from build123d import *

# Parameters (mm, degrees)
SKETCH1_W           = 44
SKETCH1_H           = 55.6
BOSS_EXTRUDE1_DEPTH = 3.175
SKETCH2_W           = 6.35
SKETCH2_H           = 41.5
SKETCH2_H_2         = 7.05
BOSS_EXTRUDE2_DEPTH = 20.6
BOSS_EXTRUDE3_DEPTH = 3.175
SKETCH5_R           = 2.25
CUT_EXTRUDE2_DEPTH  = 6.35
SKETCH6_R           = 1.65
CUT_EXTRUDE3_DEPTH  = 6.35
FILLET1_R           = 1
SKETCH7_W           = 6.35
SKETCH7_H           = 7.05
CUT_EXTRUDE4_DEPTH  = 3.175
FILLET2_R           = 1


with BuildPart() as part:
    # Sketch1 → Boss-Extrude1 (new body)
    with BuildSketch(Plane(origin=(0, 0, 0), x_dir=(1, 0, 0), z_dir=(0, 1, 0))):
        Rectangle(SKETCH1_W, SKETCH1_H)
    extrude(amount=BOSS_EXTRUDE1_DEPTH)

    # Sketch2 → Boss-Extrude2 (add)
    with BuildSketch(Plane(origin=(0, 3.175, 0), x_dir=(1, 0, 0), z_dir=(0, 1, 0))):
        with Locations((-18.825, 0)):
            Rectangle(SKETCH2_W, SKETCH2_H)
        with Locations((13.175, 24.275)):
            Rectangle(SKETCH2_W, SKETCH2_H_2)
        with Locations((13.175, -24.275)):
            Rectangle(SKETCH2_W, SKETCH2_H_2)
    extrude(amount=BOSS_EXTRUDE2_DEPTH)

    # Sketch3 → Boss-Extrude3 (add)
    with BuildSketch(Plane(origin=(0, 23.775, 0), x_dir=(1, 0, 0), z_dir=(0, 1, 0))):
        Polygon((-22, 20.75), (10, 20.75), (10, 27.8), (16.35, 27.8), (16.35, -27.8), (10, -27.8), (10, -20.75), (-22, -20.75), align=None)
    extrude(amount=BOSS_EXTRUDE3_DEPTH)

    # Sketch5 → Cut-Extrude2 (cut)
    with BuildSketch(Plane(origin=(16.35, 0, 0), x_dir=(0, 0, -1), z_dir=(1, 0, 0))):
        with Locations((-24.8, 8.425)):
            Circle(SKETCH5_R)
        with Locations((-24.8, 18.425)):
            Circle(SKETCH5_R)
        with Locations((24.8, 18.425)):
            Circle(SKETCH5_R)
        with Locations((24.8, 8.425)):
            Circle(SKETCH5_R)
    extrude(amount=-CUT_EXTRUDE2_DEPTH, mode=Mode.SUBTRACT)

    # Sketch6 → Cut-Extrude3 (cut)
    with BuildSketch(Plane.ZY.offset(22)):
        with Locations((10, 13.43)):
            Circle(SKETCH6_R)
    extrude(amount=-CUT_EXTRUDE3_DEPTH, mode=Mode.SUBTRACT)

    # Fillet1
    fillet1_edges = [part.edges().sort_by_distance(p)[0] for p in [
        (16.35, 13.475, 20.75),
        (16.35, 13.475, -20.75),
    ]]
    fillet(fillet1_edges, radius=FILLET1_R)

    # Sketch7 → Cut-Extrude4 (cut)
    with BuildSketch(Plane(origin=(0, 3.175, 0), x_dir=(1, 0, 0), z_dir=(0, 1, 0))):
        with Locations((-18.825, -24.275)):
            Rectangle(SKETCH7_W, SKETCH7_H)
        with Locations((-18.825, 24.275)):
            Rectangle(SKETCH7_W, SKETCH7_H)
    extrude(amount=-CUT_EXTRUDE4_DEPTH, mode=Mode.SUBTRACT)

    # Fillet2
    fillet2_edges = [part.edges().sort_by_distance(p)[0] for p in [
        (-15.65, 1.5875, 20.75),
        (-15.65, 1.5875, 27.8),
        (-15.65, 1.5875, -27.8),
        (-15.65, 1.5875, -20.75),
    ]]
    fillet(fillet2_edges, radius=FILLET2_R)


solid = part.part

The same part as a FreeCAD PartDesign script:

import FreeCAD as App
import Part
import Sketcher
Q = App.Units.Quantity


def edges_at(feature, points):
    """Names of the edges that pass closest to the given points."""
    edges = feature.Shape.Edges
    near = lambda p: min(range(len(edges)), key=lambda i: edges[i].distToShape(Part.Vertex(*p))[0])
    return sorted({f"Edge{near(p) + 1}" for p in points})

doc = App.newDocument("Part")
params = doc.addObject("Spreadsheet::Sheet", "Params")
for row, (alias, value) in enumerate([
    ("sketch1_width", "44 mm"),
    ("sketch1_height", "55.6 mm"),
    ("pad1_length", "3.175 mm"),
    ("sketch2_height", "41.5 mm"),
    ("sketch2_width", "6.35 mm"),
    ("sketch2_height2", "7.05 mm"),
    ("pad2_length", "20.6 mm"),
    ("sketch3_width", "32 mm"),
    ("sketch3_height", "41.5 mm"),
    ("sketch3_height2", "55.6 mm"),
    ("sketch3_width2", "6.35 mm"),
    ("pad3_length", "3.175 mm"),
    ("sketch4_diameter", "4.5 mm"),
    ("pocket1_length", "6.35 mm"),
    ("sketch5_diameter", "3.3 mm"),
    ("pocket2_length", "6.35 mm"),
    ("fillet_radius", "1 mm"),
    ("sketch6_width", "6.35 mm"),
    ("sketch6_height", "7.05 mm"),
    ("pocket3_length", "3.175 mm"),
    ("fillet2_radius", "1 mm"),
], start=1):
    params.set(f"A{row}", alias)
    params.set(f"B{row}", "=" + value)
    params.setAlias(f"B{row}", alias)

body = doc.addObject("PartDesign::Body", "Body")

# Sketch on XZ plane
sketch1 = body.newObject("Sketcher::SketchObject", "Sketch")
sketch1.AttachmentSupport = (doc.getObject("XZ_Plane"), [""])
sketch1.MapMode = "FlatFace"
sketch1.addGeometry(Part.LineSegment(App.Vector(-22, -28, 0), App.Vector(-22, 28, 0)), False)
sketch1.addGeometry(Part.LineSegment(App.Vector(-22, 28, 0), App.Vector(22, 28, 0)), False)
sketch1.addGeometry(Part.LineSegment(App.Vector(22, 28, 0), App.Vector(22, -28, 0)), False)
sketch1.addGeometry(Part.LineSegment(App.Vector(22, -28, 0), App.Vector(-22, -28, 0)), False)
sketch1.addConstraint(Sketcher.Constraint("Coincident", 0, 2, 1, 1))
sketch1.addConstraint(Sketcher.Constraint("Coincident", 1, 2, 2, 1))
sketch1.addConstraint(Sketcher.Constraint("Coincident", 2, 2, 3, 1))
sketch1.addConstraint(Sketcher.Constraint("Coincident", 3, 2, 0, 1))
sketch1.addConstraint(Sketcher.Constraint("Vertical", 0))
sketch1.addConstraint(Sketcher.Constraint("Horizontal", 1))
sketch1.addConstraint(Sketcher.Constraint("Vertical", 2))
sketch1.addConstraint(Sketcher.Constraint("Horizontal", 3))
sketch1.addConstraint(Sketcher.Constraint("Symmetric", 0, 2, 2, 2, -1, 1))
sketch1.addConstraint(Sketcher.Constraint("DistanceX", 1, 1, 1, 2, Q("44 mm")))
sketch1.addConstraint(Sketcher.Constraint("DistanceY", 0, 1, 0, 2, Q("55.6 mm")))
sketch1.setExpression("Constraints[9]", "Params.sketch1_width")
sketch1.setExpression("Constraints[10]", "Params.sketch1_height")
pad1 = body.newObject("PartDesign::Pad", "Pad")
pad1.Profile = sketch1
pad1.setExpression("Length", "Params.pad1_length")
pad1.Reversed = True

# Sketch on XZ plane
sketch2 = body.newObject("Sketcher::SketchObject", "Sketch001")
sketch2.AttachmentSupport = (doc.getObject("XZ_Plane"), [""])
sketch2.MapMode = "FlatFace"
sketch2.AttachmentOffset = App.Placement(App.Vector(0, 0, -3.175), App.Rotation())
sketch2.addGeometry(Part.LineSegment(App.Vector(-22, -21, 0), App.Vector(-22, 21, 0)), False)
sketch2.addGeometry(Part.LineSegment(App.Vector(-22, 21, 0), App.Vector(-16, 21, 0)), False)
sketch2.addGeometry(Part.LineSegment(App.Vector(-16, 21, 0), App.Vector(-16, -21, 0)), False)
sketch2.addGeometry(Part.LineSegment(App.Vector(-16, -21, 0), App.Vector(-22, -21, 0)), False)
sketch2.addGeometry(Part.LineSegment(App.Vector(10, -28, 0), App.Vector(10, -21, 0)), False)
sketch2.addGeometry(Part.LineSegment(App.Vector(10, -21, 0), App.Vector(16, -21, 0)), False)
sketch2.addGeometry(Part.LineSegment(App.Vector(16, -21, 0), App.Vector(16, -28, 0)), False)
sketch2.addGeometry(Part.LineSegment(App.Vector(16, -28, 0), App.Vector(10, -28, 0)), False)
sketch2.addGeometry(Part.LineSegment(App.Vector(10, 21, 0), App.Vector(10, 28, 0)), False)
sketch2.addGeometry(Part.LineSegment(App.Vector(10, 28, 0), App.Vector(16, 28, 0)), False)
sketch2.addGeometry(Part.LineSegment(App.Vector(16, 28, 0), App.Vector(16, 21, 0)), False)
sketch2.addGeometry(Part.LineSegment(App.Vector(16, 21, 0), App.Vector(10, 21, 0)), False)
sketch2.addConstraint(Sketcher.Constraint("Coincident", 0, 2, 1, 1))
sketch2.addConstraint(Sketcher.Constraint("Coincident", 1, 2, 2, 1))
sketch2.addConstraint(Sketcher.Constraint("Coincident", 2, 2, 3, 1))
sketch2.addConstraint(Sketcher.Constraint("Coincident", 3, 2, 0, 1))
sketch2.addConstraint(Sketcher.Constraint("Coincident", 4, 2, 5, 1))
sketch2.addConstraint(Sketcher.Constraint("Coincident", 5, 2, 6, 1))
sketch2.addConstraint(Sketcher.Constraint("Coincident", 6, 2, 7, 1))
sketch2.addConstraint(Sketcher.Constraint("Coincident", 7, 2, 4, 1))
sketch2.addConstraint(Sketcher.Constraint("Coincident", 8, 2, 9, 1))
sketch2.addConstraint(Sketcher.Constraint("Coincident", 9, 2, 10, 1))
sketch2.addConstraint(Sketcher.Constraint("Coincident", 10, 2, 11, 1))
sketch2.addConstraint(Sketcher.Constraint("Coincident", 11, 2, 8, 1))
sketch2.addConstraint(Sketcher.Constraint("Vertical", 0))
sketch2.addConstraint(Sketcher.Constraint("Horizontal", 1))
sketch2.addConstraint(Sketcher.Constraint("Vertical", 2))
sketch2.addConstraint(Sketcher.Constraint("Horizontal", 3))
sketch2.addConstraint(Sketcher.Constraint("Vertical", 4))
sketch2.addConstraint(Sketcher.Constraint("Horizontal", 5))
sketch2.addConstraint(Sketcher.Constraint("Vertical", 6))
sketch2.addConstraint(Sketcher.Constraint("Horizontal", 7))
sketch2.addConstraint(Sketcher.Constraint("Vertical", 8))
sketch2.addConstraint(Sketcher.Constraint("Horizontal", 9))
sketch2.addConstraint(Sketcher.Constraint("Vertical", 10))
sketch2.addConstraint(Sketcher.Constraint("Horizontal", 11))
sketch2.addConstraint(Sketcher.Constraint("Symmetric", 7, 2, 8, 2, -1))
sketch2.addConstraint(Sketcher.Constraint("Symmetric", 5, 2, 10, 2, -1))
sketch2.addConstraint(Sketcher.Constraint("Horizontal", 3, 2, 4, 2))
sketch2.addConstraint(Sketcher.Constraint("Horizontal", 1, 2, 10, 2))
sketch2.addConstraint(Sketcher.Constraint("Equal", 3, 5))
sketch2.addConstraint(Sketcher.Constraint("DistanceY", 0, 1, 0, 2, Q("41.5 mm")))
sketch2.addConstraint(Sketcher.Constraint("DistanceX", 0, 2, -1, 1, Q("22 mm")))
sketch2.addConstraint(Sketcher.Constraint("DistanceX", -1, 1, 4, 2, Q("10 mm")))
sketch2.addConstraint(Sketcher.Constraint("DistanceX", 1, 1, 1, 2, Q("6.35 mm")))
sketch2.addConstraint(Sketcher.Constraint("DistanceY", 4, 1, 4, 2, Q("7.05 mm")))
sketch2.setExpression("Constraints[29]", "Params.sketch2_height")
sketch2.setExpression("Constraints[32]", "Params.sketch2_width")
sketch2.setExpression("Constraints[33]", "Params.sketch2_height2")
pad2 = body.newObject("PartDesign::Pad", "Pad001")
pad2.Profile = sketch2
pad2.setExpression("Length", "Params.pad2_length")
pad2.Reversed = True

# Sketch on XZ plane
sketch3 = body.newObject("Sketcher::SketchObject", "Sketch002")
sketch3.AttachmentSupport = (doc.getObject("XZ_Plane"), [""])
sketch3.MapMode = "FlatFace"
sketch3.AttachmentOffset = App.Placement(App.Vector(0, 0, -23.775), App.Rotation())
sketch3.addGeometry(Part.LineSegment(App.Vector(10, -21, 0), App.Vector(-22, -21, 0)), False)
sketch3.addGeometry(Part.LineSegment(App.Vector(-22, -21, 0), App.Vector(-22, 21, 0)), False)
sketch3.addGeometry(Part.LineSegment(App.Vector(-22, 21, 0), App.Vector(10, 21, 0)), False)
sketch3.addGeometry(Part.LineSegment(App.Vector(10, 21, 0), App.Vector(10, 28, 0)), False)
sketch3.addGeometry(Part.LineSegment(App.Vector(10, 28, 0), App.Vector(16, 28, 0)), False)
sketch3.addGeometry(Part.LineSegment(App.Vector(16, 28, 0), App.Vector(16, -28, 0)), False)
sketch3.addGeometry(Part.LineSegment(App.Vector(16, -28, 0), App.Vector(10, -28, 0)), False)
sketch3.addGeometry(Part.LineSegment(App.Vector(10, -28, 0), App.Vector(10, -21, 0)), False)
sketch3.addConstraint(Sketcher.Constraint("Coincident", 0, 2, 1, 1))
sketch3.addConstraint(Sketcher.Constraint("Coincident", 1, 2, 2, 1))
sketch3.addConstraint(Sketcher.Constraint("Coincident", 2, 2, 3, 1))
sketch3.addConstraint(Sketcher.Constraint("Coincident", 3, 2, 4, 1))
sketch3.addConstraint(Sketcher.Constraint("Coincident", 4, 2, 5, 1))
sketch3.addConstraint(Sketcher.Constraint("Coincident", 5, 2, 6, 1))
sketch3.addConstraint(Sketcher.Constraint("Coincident", 6, 2, 7, 1))
sketch3.addConstraint(Sketcher.Constraint("Coincident", 7, 2, 0, 1))
sketch3.addConstraint(Sketcher.Constraint("Horizontal", 0))
sketch3.addConstraint(Sketcher.Constraint("Vertical", 1))
sketch3.addConstraint(Sketcher.Constraint("Horizontal", 2))
sketch3.addConstraint(Sketcher.Constraint("Vertical", 3))
sketch3.addConstraint(Sketcher.Constraint("Horizontal", 4))
sketch3.addConstraint(Sketcher.Constraint("Vertical", 5))
sketch3.addConstraint(Sketcher.Constraint("Horizontal", 6))
sketch3.addConstraint(Sketcher.Constraint("Vertical", 7))
sketch3.addConstraint(Sketcher.Constraint("Symmetric", 3, 2, 6, 2, -1))
sketch3.addConstraint(Sketcher.Constraint("Equal", 3, 7))
sketch3.addConstraint(Sketcher.Constraint("DistanceX", 0, 2, 0, 1, Q("32 mm")))
sketch3.addConstraint(Sketcher.Constraint("DistanceY", 1, 1, 1, 2, Q("41.5 mm")))
sketch3.addConstraint(Sketcher.Constraint("DistanceY", 5, 2, 5, 1, Q("55.6 mm")))
sketch3.addConstraint(Sketcher.Constraint("DistanceX", 0, 2, -1, 1, Q("22 mm")))
sketch3.addConstraint(Sketcher.Constraint("DistanceX", 4, 1, 4, 2, Q("6.35 mm")))
sketch3.setExpression("Constraints[18]", "Params.sketch3_width")
sketch3.setExpression("Constraints[19]", "Params.sketch3_height")
sketch3.setExpression("Constraints[20]", "Params.sketch3_height2")
sketch3.setExpression("Constraints[22]", "Params.sketch3_width2")
pad3 = body.newObject("PartDesign::Pad", "Pad002")
pad3.Profile = sketch3
pad3.setExpression("Length", "Params.pad3_length")
pad3.Reversed = True

# Sketch on YZ plane
sketch4 = body.newObject("Sketcher::SketchObject", "Sketch003")
sketch4.AttachmentSupport = (doc.getObject("YZ_Plane"), [""])
sketch4.MapMode = "FlatFace"
sketch4.AttachmentOffset = App.Placement(App.Vector(0, 0, 16.35), App.Rotation())
sketch4.addGeometry(Part.Circle(App.Vector(8.4, 24.8, 0), App.Vector(0, 0, 1), 2.2), False)
sketch4.addGeometry(Part.Circle(App.Vector(18.4, 24.8, 0), App.Vector(0, 0, 1), 2.2), False)
sketch4.addGeometry(Part.Circle(App.Vector(18.4, -24.8, 0), App.Vector(0, 0, 1), 2.2), False)
sketch4.addGeometry(Part.Circle(App.Vector(8.4, -24.8, 0), App.Vector(0, 0, 1), 2.2), False)
sketch4.addConstraint(Sketcher.Constraint("Equal", 0, 1))
sketch4.addConstraint(Sketcher.Constraint("Equal", 1, 2))
sketch4.addConstraint(Sketcher.Constraint("Equal", 2, 3))
sketch4.addConstraint(Sketcher.Constraint("Symmetric", 1, 3, 2, 3, -1))
sketch4.addConstraint(Sketcher.Constraint("Symmetric", 0, 3, 3, 3, -1))
sketch4.addConstraint(Sketcher.Constraint("Horizontal", 0, 3, 1, 3))
sketch4.addConstraint(Sketcher.Constraint("Diameter", 0, Q("4.5 mm")))
sketch4.addConstraint(Sketcher.Constraint("DistanceX", 0, 3, 1, 3, Q("10 mm")))
sketch4.addConstraint(Sketcher.Constraint("DistanceY", -1, 1, 0, 3, Q("24.8 mm")))
sketch4.addConstraint(Sketcher.Constraint("DistanceX", -1, 1, 0, 3, Q("8.425 mm")))
sketch4.setExpression("Constraints[6]", "Params.sketch4_diameter")
pocket1 = body.newObject("PartDesign::Pocket", "Pocket")
pocket1.Profile = sketch4
pocket1.setExpression("Length", "Params.pocket1_length")

# Sketch on YZ plane
sketch5 = body.newObject("Sketcher::SketchObject", "Sketch004")
sketch5.AttachmentSupport = (doc.getObject("YZ_Plane"), [""])
sketch5.MapMode = "FlatFace"
sketch5.AttachmentOffset = App.Placement(App.Vector(0, 0, -22), App.Rotation())
sketch5.addGeometry(Part.Circle(App.Vector(13.4, 10, 0), App.Vector(0, 0, 1), 1.6), False)
sketch5.addConstraint(Sketcher.Constraint("Diameter", 0, Q("3.3 mm")))
sketch5.addConstraint(Sketcher.Constraint("DistanceY", -1, 1, 0, 3, Q("10 mm")))
sketch5.addConstraint(Sketcher.Constraint("DistanceX", -1, 1, 0, 3, Q("13.43 mm")))
sketch5.setExpression("Constraints[0]", "Params.sketch5_diameter")
pocket2 = body.newObject("PartDesign::Pocket", "Pocket001")
pocket2.Profile = sketch5
pocket2.setExpression("Length", "Params.pocket2_length")
pocket2.Reversed = True
doc.recompute()

fillet = body.newObject("PartDesign::Fillet", "Fillet")
fillet.Base = (pocket2, edges_at(pocket2, [(16.35, 13.475, 20.75), (16.35, 13.475, -20.75)]))
fillet.setExpression("Radius", "Params.fillet_radius")

# Sketch on XZ plane
sketch6 = body.newObject("Sketcher::SketchObject", "Sketch005")
sketch6.AttachmentSupport = (doc.getObject("XZ_Plane"), [""])
sketch6.MapMode = "FlatFace"
sketch6.AttachmentOffset = App.Placement(App.Vector(0, 0, -3.175), App.Rotation())
sketch6.addGeometry(Part.LineSegment(App.Vector(-22, 21, 0), App.Vector(-22, 28, 0)), False)
sketch6.addGeometry(Part.LineSegment(App.Vector(-22, 28, 0), App.Vector(-16, 28, 0)), False)
sketch6.addGeometry(Part.LineSegment(App.Vector(-16, 28, 0), App.Vector(-16, 21, 0)), False)
sketch6.addGeometry(Part.LineSegment(App.Vector(-16, 21, 0), App.Vector(-22, 21, 0)), False)
sketch6.addGeometry(Part.LineSegment(App.Vector(-22, -28, 0), App.Vector(-22, -21, 0)), False)
sketch6.addGeometry(Part.LineSegment(App.Vector(-22, -21, 0), App.Vector(-16, -21, 0)), False)
sketch6.addGeometry(Part.LineSegment(App.Vector(-16, -21, 0), App.Vector(-16, -28, 0)), False)
sketch6.addGeometry(Part.LineSegment(App.Vector(-16, -28, 0), App.Vector(-22, -28, 0)), False)
sketch6.addConstraint(Sketcher.Constraint("Coincident", 0, 2, 1, 1))
sketch6.addConstraint(Sketcher.Constraint("Coincident", 1, 2, 2, 1))
sketch6.addConstraint(Sketcher.Constraint("Coincident", 2, 2, 3, 1))
sketch6.addConstraint(Sketcher.Constraint("Coincident", 3, 2, 0, 1))
sketch6.addConstraint(Sketcher.Constraint("Coincident", 4, 2, 5, 1))
sketch6.addConstraint(Sketcher.Constraint("Coincident", 5, 2, 6, 1))
sketch6.addConstraint(Sketcher.Constraint("Coincident", 6, 2, 7, 1))
sketch6.addConstraint(Sketcher.Constraint("Coincident", 7, 2, 4, 1))
sketch6.addConstraint(Sketcher.Constraint("Vertical", 0))
sketch6.addConstraint(Sketcher.Constraint("Horizontal", 1))
sketch6.addConstraint(Sketcher.Constraint("Vertical", 2))
sketch6.addConstraint(Sketcher.Constraint("Horizontal", 3))
sketch6.addConstraint(Sketcher.Constraint("Vertical", 4))
sketch6.addConstraint(Sketcher.Constraint("Horizontal", 5))
sketch6.addConstraint(Sketcher.Constraint("Vertical", 6))
sketch6.addConstraint(Sketcher.Constraint("Horizontal", 7))
sketch6.addConstraint(Sketcher.Constraint("Symmetric", 3, 2, 4, 2, -1))
sketch6.addConstraint(Sketcher.Constraint("Symmetric", 1, 2, 6, 2, -1))
sketch6.addConstraint(Sketcher.Constraint("DistanceX", 0, 2, -1, 1, Q("22 mm")))
sketch6.addConstraint(Sketcher.Constraint("DistanceX", 1, 1, 1, 2, Q("6.35 mm")))
sketch6.addConstraint(Sketcher.Constraint("DistanceY", 0, 1, 0, 2, Q("7.05 mm")))
sketch6.addConstraint(Sketcher.Constraint("DistanceY", -1, 1, 0, 2, Q("27.8 mm")))
sketch6.setExpression("Constraints[19]", "Params.sketch6_width")
sketch6.setExpression("Constraints[20]", "Params.sketch6_height")
pocket3 = body.newObject("PartDesign::Pocket", "Pocket002")
pocket3.Profile = sketch6
pocket3.setExpression("Length", "Params.pocket3_length")
pocket3.Reversed = True
doc.recompute()

fillet2 = body.newObject("PartDesign::Fillet", "Fillet001")
fillet2.Base = (pocket3, edges_at(pocket3, [
    (-15.65, 1.587, 20.75),
    (-15.65, 1.587, 27.8),
    (-15.65, 1.587, -27.8),
    (-15.65, 1.587, -20.75),
]))
fillet2.setExpression("Radius", "Params.fillet2_radius")

doc.recompute()
